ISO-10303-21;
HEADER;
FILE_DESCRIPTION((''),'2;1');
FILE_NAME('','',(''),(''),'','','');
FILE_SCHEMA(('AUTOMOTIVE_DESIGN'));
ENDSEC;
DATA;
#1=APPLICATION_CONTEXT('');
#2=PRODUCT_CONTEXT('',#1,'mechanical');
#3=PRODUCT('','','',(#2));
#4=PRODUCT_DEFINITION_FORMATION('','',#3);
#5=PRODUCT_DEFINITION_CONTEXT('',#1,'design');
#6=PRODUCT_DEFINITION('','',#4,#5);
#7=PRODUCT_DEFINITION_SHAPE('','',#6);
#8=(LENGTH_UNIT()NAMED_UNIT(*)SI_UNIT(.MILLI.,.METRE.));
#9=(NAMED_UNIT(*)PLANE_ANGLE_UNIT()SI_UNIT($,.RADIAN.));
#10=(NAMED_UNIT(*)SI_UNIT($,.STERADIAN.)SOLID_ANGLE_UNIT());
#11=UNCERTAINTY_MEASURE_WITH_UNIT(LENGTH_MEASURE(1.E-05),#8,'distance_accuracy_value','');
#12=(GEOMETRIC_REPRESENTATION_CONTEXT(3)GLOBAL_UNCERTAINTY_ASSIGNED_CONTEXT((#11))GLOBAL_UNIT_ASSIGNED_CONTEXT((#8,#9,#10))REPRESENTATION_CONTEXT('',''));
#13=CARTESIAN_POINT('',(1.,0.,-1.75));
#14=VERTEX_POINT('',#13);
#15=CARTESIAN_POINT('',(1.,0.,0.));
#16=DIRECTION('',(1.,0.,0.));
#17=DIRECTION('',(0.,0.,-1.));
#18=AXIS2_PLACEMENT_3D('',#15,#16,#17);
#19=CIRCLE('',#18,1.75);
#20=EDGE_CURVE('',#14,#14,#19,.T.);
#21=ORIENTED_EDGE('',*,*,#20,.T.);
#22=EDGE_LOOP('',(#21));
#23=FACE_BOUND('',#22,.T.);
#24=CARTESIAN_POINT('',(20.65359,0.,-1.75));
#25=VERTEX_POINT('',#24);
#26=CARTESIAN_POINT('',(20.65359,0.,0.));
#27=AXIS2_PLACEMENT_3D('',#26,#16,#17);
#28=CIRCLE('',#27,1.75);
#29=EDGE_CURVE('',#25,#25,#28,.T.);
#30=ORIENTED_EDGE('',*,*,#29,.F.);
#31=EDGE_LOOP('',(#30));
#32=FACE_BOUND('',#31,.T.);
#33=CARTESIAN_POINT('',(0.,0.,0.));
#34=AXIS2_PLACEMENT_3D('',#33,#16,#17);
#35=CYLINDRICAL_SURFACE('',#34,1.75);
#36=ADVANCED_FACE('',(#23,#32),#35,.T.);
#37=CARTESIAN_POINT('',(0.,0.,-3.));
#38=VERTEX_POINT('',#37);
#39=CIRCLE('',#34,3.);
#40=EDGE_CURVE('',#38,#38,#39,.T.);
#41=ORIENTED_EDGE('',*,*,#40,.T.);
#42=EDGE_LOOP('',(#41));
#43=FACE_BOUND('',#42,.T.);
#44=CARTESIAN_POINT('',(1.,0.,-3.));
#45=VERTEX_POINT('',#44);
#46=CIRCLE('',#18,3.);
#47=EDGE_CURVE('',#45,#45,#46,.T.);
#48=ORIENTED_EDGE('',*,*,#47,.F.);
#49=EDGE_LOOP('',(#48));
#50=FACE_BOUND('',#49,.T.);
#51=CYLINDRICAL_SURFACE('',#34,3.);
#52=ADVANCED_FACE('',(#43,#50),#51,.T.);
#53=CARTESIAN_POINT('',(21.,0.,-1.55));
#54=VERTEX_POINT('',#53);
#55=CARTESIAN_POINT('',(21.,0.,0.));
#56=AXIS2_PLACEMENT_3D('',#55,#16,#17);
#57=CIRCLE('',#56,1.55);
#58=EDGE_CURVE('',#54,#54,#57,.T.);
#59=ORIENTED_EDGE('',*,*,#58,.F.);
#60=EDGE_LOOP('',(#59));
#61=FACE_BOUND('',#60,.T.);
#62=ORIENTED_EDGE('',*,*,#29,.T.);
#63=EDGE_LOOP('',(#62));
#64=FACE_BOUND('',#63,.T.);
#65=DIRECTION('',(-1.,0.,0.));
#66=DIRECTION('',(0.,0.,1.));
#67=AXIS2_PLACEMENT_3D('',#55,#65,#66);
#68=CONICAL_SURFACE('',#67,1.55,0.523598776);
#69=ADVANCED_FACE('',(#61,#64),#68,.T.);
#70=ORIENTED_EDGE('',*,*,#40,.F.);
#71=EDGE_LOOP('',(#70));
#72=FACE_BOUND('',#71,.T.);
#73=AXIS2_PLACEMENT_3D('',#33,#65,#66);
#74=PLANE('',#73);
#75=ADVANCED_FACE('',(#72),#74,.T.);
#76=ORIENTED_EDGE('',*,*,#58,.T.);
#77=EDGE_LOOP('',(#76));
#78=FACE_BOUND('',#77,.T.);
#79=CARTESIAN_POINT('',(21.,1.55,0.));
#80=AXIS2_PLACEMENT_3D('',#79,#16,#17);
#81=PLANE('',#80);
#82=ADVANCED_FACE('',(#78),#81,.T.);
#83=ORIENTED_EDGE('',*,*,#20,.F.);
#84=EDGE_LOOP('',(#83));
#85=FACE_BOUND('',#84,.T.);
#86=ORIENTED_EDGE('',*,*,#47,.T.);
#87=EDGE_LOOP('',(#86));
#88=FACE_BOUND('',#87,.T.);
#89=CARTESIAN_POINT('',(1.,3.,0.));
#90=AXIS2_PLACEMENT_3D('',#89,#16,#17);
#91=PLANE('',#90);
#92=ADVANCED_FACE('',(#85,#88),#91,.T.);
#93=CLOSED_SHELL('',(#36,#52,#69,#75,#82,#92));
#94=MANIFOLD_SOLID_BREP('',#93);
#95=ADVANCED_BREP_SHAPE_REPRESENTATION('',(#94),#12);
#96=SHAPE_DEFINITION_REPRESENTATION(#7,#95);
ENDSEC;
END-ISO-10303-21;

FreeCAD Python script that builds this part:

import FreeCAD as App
import Part
import Sketcher
Q = App.Units.Quantity


def add_polygon(sketch, points):
    """Adds a closed chain of lines whose ends are joined by coincident constraints."""
    first, n = sketch.GeometryCount, len(points)
    for a, b in zip(points, points[1:] + points[:1]):
        sketch.addGeometry(Part.LineSegment(App.Vector(*a, 0), App.Vector(*b, 0)), False)
    for i in range(n):
        sketch.addConstraint(Sketcher.Constraint("Coincident", first + i, 2, first + (i + 1) % n, 1))

doc = App.newDocument("Part")
body = doc.addObject("PartDesign::Body", "Body")

# Sketch on XY plane
sketch1 = doc.addObject("Sketcher::SketchObject", "Sketch")
body.addObject(sketch1)
sketch1.AttachmentSupport = (doc.XY_Plane, [""])
sketch1.MapMode = "FlatFace"
add_polygon(sketch1, [(0, 3), (0, 0), (21, 0), (21, 1.55), (20.65, 1.75), (1, 1.75), (1, 3)])  # lines 0-6
sketch1.addConstraint([
    Sketcher.Constraint("Vertical", 0),
    Sketcher.Constraint("Horizontal", 1),
    Sketcher.Constraint("Vertical", 2),
    Sketcher.Constraint("Horizontal", 4),
    Sketcher.Constraint("Vertical", 5),
    Sketcher.Constraint("Horizontal", 6),
    Sketcher.Constraint("Coincident", 0, 2, -1, 1),
    Sketcher.Constraint("DistanceX", 1, 1, 1, 2, 21.0),
    Sketcher.Constraint("DistanceX", 6, 2, 6, 1, 1.0),
    Sketcher.Constraint("DistanceY", 0, 2, 0, 1, 3.0),
    Sketcher.Constraint("Angle", 3, Q("150 deg")),
    Sketcher.Constraint("Distance", 3, 0.4),
    Sketcher.Constraint("DistanceY", 2, 1, 2, 2, 1.55),
])
revolution = doc.addObject("PartDesign::Revolution", "Revolution")
body.addObject(revolution)
revolution.Profile = sketch1
revolution.ReferenceAxis = (sketch1, ["H_Axis"])
revolution.Angle = 360

doc.recompute()
